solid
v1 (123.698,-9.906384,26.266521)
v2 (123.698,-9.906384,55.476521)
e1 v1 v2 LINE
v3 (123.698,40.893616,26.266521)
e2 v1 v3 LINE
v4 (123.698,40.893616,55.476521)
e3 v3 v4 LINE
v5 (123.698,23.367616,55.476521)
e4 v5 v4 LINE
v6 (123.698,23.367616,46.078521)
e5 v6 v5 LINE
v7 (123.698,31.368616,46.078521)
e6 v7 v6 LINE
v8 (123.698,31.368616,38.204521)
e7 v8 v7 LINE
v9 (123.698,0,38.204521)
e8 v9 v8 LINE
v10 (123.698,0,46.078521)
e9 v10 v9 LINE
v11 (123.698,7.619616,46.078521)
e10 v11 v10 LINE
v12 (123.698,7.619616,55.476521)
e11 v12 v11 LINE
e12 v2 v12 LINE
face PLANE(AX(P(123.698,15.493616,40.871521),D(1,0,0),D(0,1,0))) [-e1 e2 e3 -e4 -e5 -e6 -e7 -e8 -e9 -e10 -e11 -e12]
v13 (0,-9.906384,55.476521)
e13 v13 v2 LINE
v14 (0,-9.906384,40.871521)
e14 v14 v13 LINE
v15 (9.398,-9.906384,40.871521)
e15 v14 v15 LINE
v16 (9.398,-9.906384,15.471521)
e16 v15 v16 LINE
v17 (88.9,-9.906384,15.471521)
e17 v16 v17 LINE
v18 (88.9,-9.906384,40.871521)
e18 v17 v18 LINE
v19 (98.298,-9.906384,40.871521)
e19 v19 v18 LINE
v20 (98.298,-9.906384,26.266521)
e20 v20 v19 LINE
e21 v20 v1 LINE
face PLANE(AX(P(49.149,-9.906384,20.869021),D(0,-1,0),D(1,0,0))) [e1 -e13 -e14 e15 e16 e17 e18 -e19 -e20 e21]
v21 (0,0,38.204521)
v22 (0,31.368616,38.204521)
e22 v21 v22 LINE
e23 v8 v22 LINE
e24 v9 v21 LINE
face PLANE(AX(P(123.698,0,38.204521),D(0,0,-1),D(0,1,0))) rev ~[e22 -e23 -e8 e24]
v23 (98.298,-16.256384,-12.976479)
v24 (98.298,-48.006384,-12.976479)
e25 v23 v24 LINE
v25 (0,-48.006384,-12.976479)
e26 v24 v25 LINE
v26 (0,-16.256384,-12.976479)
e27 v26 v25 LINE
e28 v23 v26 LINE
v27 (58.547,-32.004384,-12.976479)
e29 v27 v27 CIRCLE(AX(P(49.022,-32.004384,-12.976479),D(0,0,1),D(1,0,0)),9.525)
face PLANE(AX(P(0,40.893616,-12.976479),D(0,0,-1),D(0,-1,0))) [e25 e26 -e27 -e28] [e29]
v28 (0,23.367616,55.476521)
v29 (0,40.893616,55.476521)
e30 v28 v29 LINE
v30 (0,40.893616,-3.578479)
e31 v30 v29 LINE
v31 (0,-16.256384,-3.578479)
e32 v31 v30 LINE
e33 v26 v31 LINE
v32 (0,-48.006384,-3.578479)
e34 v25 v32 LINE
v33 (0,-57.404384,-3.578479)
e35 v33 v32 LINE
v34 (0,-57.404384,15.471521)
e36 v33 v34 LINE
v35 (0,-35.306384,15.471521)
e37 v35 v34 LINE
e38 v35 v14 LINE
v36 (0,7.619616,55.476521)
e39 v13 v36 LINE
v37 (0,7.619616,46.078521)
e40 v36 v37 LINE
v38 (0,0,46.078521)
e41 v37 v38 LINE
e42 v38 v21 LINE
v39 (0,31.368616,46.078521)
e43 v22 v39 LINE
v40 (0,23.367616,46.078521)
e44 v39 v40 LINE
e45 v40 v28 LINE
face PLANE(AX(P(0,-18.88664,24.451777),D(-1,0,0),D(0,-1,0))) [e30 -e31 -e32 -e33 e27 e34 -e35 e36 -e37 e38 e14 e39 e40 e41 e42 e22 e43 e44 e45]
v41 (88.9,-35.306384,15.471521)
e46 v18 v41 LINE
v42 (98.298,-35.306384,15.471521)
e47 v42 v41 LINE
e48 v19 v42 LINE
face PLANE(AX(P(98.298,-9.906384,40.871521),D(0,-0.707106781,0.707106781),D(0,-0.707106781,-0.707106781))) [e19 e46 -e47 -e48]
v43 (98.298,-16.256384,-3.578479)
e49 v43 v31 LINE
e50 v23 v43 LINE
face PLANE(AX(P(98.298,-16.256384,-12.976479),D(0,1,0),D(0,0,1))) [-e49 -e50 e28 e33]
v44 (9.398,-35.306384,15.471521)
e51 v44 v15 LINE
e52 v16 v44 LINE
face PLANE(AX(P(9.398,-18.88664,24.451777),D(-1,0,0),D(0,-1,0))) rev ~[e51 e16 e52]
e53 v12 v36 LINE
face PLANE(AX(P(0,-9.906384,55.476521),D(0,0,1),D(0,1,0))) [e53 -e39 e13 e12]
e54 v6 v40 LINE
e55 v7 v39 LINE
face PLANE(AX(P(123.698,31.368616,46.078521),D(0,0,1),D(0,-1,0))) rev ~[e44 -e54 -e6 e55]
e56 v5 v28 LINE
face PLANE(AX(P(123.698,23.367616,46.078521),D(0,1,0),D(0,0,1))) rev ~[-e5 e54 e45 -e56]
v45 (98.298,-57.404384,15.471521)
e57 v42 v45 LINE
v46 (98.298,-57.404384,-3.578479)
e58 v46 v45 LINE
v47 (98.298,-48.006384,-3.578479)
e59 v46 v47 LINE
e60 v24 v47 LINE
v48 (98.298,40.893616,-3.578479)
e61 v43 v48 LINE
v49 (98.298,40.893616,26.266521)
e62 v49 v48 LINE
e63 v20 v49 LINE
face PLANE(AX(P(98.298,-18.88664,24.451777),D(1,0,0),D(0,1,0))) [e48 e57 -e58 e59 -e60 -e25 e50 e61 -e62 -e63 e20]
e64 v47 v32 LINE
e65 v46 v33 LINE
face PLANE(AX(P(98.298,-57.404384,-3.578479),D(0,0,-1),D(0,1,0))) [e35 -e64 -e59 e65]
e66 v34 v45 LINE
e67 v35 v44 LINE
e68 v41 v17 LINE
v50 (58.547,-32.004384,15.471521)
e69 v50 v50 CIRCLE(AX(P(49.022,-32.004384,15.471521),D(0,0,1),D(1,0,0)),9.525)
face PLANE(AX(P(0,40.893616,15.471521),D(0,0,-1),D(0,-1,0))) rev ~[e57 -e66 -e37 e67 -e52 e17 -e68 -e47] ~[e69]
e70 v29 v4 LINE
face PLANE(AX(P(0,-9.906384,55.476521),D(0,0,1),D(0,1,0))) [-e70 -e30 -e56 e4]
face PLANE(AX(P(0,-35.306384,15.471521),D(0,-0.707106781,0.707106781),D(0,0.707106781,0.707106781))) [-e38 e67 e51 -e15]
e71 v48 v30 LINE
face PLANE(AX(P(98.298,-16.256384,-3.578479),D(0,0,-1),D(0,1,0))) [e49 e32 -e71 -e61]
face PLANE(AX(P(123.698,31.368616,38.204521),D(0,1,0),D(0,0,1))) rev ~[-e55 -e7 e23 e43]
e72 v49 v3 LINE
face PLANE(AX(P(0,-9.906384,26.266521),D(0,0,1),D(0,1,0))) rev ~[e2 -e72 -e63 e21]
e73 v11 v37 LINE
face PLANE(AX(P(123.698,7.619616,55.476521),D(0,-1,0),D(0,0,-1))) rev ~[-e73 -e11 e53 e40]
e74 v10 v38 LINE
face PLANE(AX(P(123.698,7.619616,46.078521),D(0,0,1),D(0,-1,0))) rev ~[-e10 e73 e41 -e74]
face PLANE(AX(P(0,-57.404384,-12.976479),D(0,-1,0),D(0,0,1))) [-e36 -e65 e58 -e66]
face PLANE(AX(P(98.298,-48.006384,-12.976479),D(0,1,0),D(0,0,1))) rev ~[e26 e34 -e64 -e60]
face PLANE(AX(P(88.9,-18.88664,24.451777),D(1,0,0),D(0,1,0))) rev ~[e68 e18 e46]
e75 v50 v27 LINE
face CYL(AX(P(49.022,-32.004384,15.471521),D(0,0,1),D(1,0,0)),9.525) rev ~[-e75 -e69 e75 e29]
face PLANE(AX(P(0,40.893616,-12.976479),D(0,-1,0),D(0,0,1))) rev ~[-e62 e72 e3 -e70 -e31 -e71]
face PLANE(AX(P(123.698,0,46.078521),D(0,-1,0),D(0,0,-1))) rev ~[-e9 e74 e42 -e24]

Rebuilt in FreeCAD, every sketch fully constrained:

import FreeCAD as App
import Part
import Sketcher
from FreeCAD import Vector
Q = App.Units.Quantity

doc = App.newDocument("Part")
body = doc.addObject("PartDesign::Body", "Body")

sketch1 = body.newObject("Sketcher::SketchObject", "Sketch")
sketch1.AttachmentSupport = (doc.getObject("YZ_Plane"), [""])
sketch1.MapMode = "FlatFace"
sketch1.addGeometry([
    Part.LineSegment(Vector(-10, 55, 0), Vector(-10, 26, 0)),
    Part.LineSegment(Vector(-10, 26, 0), Vector(41, 26, 0)),
    Part.LineSegment(Vector(41, 26, 0), Vector(41, 55, 0)),
    Part.LineSegment(Vector(41, 55, 0), Vector(-10, 55, 0)),
], False)
sketch1.addConstraint([
    Sketcher.Constraint("Coincident", 0, 2, 1, 1),
    Sketcher.Constraint("Coincident", 1, 2, 2, 1),
    Sketcher.Constraint("Coincident", 2, 2, 3, 1),
    Sketcher.Constraint("Coincident", 3, 2, 0, 1),
    Sketcher.Constraint("Vertical", 0),
    Sketcher.Constraint("Horizontal", 1),
    Sketcher.Constraint("Vertical", 2),
    Sketcher.Constraint("Horizontal", 3),
    Sketcher.Constraint("DistanceX", 1, 1, 1, 2, Q("2 in")),
    Sketcher.Constraint("DistanceY", 0, 2, 0, 1, Q("1.15 in")),
    Sketcher.Constraint("DistanceY", -1, 1, 0, 2, 26.266521),
    Sketcher.Constraint("DistanceX", 0, 2, -1, 1, 9.906384),
])
pad1 = body.newObject("PartDesign::Pad", "Pad")
pad1.Profile = sketch1
pad1.Length = Q("4.87 in")

sketch2 = body.newObject("Sketcher::SketchObject", "Sketch001")
sketch2.AttachmentSupport = (doc.getObject("YZ_Plane"), [""])
sketch2.MapMode = "FlatFace"
sketch2.AttachmentOffset = App.Placement(Vector(0, 0, 4.87 * 25.4), App.Rotation())
sketch2.addGeometry([
    Part.LineSegment(Vector(23, 46, 0), Vector(23, 55, 0)),
    Part.LineSegment(Vector(23, 55, 0), Vector(8, 55, 0)),
    Part.LineSegment(Vector(8, 55, 0), Vector(8, 46, 0)),
    Part.LineSegment(Vector(8, 46, 0), Vector(0, 46, 0)),
    Part.LineSegment(Vector(0, 46, 0), Vector(0, 38, 0)),
    Part.LineSegment(Vector(0, 38, 0), Vector(31, 38, 0)),
    Part.LineSegment(Vector(31, 38, 0), Vector(31, 46, 0)),
    Part.LineSegment(Vector(31, 46, 0), Vector(23, 46, 0)),
], False)
sketch2.addConstraint([
    Sketcher.Constraint("Coincident", 0, 2, 1, 1),
    Sketcher.Constraint("Coincident", 1, 2, 2, 1),
    Sketcher.Constraint("Coincident", 2, 2, 3, 1),
    Sketcher.Constraint("Coincident", 3, 2, 4, 1),
    Sketcher.Constraint("Coincident", 4, 2, 5, 1),
    Sketcher.Constraint("Coincident", 5, 2, 6, 1),
    Sketcher.Constraint("Coincident", 6, 2, 7, 1),
    Sketcher.Constraint("Coincident", 7, 2, 0, 1),
    Sketcher.Constraint("Vertical", 0),
    Sketcher.Constraint("Horizontal", 1),
    Sketcher.Constraint("Vertical", 2),
    Sketcher.Constraint("Horizontal", 3),
    Sketcher.Constraint("Vertical", 4),
    Sketcher.Constraint("Horizontal", 5),
    Sketcher.Constraint("Vertical", 6),
    Sketcher.Constraint("Horizontal", 7),
    Sketcher.Constraint("PointOnObject", 3, 2, -2),
    Sketcher.Constraint("Horizontal", 3, 2, 6, 2),
    Sketcher.Constraint("DistanceX", 1, 2, 1, 1, Q("0.62 in")),
    Sketcher.Constraint("DistanceY", 0, 1, 0, 2, Q("0.37 in")),
    Sketcher.Constraint("DistanceY", 4, 2, 4, 1, Q("0.31 in")),
    Sketcher.Constraint("DistanceX", 7, 2, 7, 1, Q("0.315 in")),
    Sketcher.Constraint("DistanceX", 3, 2, 3, 1, 7.619616),
    Sketcher.Constraint("DistanceY", -1, 1, 0, 2, 55.476521),
])
pocket1 = body.newObject("PartDesign::Pocket", "Pocket")
pocket1.Profile = sketch2
pocket1.Length = Q("4.87 in")

sketch3 = body.newObject("Sketcher::SketchObject", "Sketch002")
sketch3.AttachmentSupport = (doc.getObject("XZ_Plane"), [""])
sketch3.MapMode = "FlatFace"
sketch3.AttachmentOffset = App.Placement(Vector(0, 0, 9.906384), App.Rotation())
sketch3.addGeometry([
    Part.LineSegment(Vector(0, 26, 0), Vector(0, 15, 0)),
    Part.LineSegment(Vector(0, 15, 0), Vector(98, 15, 0)),
    Part.LineSegment(Vector(98, 15, 0), Vector(98, 26, 0)),
    Part.LineSegment(Vector(98, 26, 0), Vector(0, 26, 0)),
], False)
sketch3.addConstraint([
    Sketcher.Constraint("Coincident", 0, 2, 1, 1),
    Sketcher.Constraint("Coincident", 1, 2, 2, 1),
    Sketcher.Constraint("Coincident", 2, 2, 3, 1),
    Sketcher.Constraint("Coincident", 3, 2, 0, 1),
    Sketcher.Constraint("Vertical", 0),
    Sketcher.Constraint("Horizontal", 1),
    Sketcher.Constraint("Vertical", 2),
    Sketcher.Constraint("Horizontal", 3),
    Sketcher.Constraint("PointOnObject", 0, 2, -2),
    Sketcher.Constraint("DistanceX", 1, 1, 1, 2, Q("3.87 in")),
    Sketcher.Constraint("DistanceY", 0, 2, 0, 1, Q("0.425 in")),
    Sketcher.Constraint("DistanceY", -1, 1, 0, 2, 15.471521),
])
pad2 = body.newObject("PartDesign::Pad", "Pad001")
pad2.Profile = sketch3
pad2.Length = Q("2 in")
pad2.Reversed = True

sketch4 = body.newObject("Sketcher::SketchObject", "Sketch003")
sketch4.AttachmentSupport = (doc.getObject("YZ_Plane"), [""])
sketch4.MapMode = "FlatFace"
sketch4.addGeometry([
    Part.LineSegment(Vector(41, 15, 0), Vector(41, -13, 0)),
    Part.LineSegment(Vector(41, -13, 0), Vector(-57, -13, 0)),
    Part.LineSegment(Vector(-57, -13, 0), Vector(-57, 15, 0)),
    Part.LineSegment(Vector(-57, 15, 0), Vector(41, 15, 0)),
], False)
sketch4.addConstraint([
    Sketcher.Constraint("Coincident", 0, 2, 1, 1),
    Sketcher.Constraint("Coincident", 1, 2, 2, 1),
    Sketcher.Constraint("Coincident", 2, 2, 3, 1),
    Sketcher.Constraint("Coincident", 3, 2, 0, 1),
    Sketcher.Constraint("Vertical", 0),
    Sketcher.Constraint("Horizontal", 1),
    Sketcher.Constraint("Vertical", 2),
    Sketcher.Constraint("Horizontal", 3),
    Sketcher.Constraint("DistanceX", 1, 2, 1, 1, Q("3.87 in")),
    Sketcher.Constraint("DistanceY", 0, 2, 0, 1, Q("1.12 in")),
    Sketcher.Constraint("DistanceY", 0, 2, -1, 1, 12.976479),
    Sketcher.Constraint("DistanceX", -1, 1, 0, 2, 40.893616),
])
pad3 = body.newObject("PartDesign::Pad", "Pad002")
pad3.Profile = sketch4
pad3.Length = Q("3.87 in")

sketch5 = body.newObject("Sketcher::SketchObject", "Sketch004")
sketch5.AttachmentSupport = (doc.getObject("YZ_Plane"), [""])
sketch5.MapMode = "FlatFace"
sketch5.AttachmentOffset = App.Placement(Vector(0, 0, 3.87 * 25.4), App.Rotation())
sketch5.addGeometry([
    Part.LineSegment(Vector(-35, 15, 0), Vector(-10, 15, 0)),
    Part.LineSegment(Vector(-10, 15, 0), Vector(-10, 41, 0)),
    Part.LineSegment(Vector(-10, 41, 0), Vector(-35, 15, 0)),
], False)
sketch5.addConstraint([
    Sketcher.Constraint("Coincident", 0, 2, 1, 1),
    Sketcher.Constraint("Coincident", 1, 2, 2, 1),
    Sketcher.Constraint("Coincident", 2, 2, 0, 1),
    Sketcher.Constraint("Horizontal", 0),
    Sketcher.Constraint("Vertical", 1),
    Sketcher.Constraint("Equal", 0, 1),
    Sketcher.Constraint("DistanceX", 0, 1, 0, 2, Q("1 in")),
    Sketcher.Constraint("DistanceY", -1, 1, 0, 2, 15.471521),
    Sketcher.Constraint("DistanceX", 0, 2, -1, 1, 9.906384),
])
pad4 = body.newObject("PartDesign::Pad", "Pad003")
pad4.Profile = sketch5
pad4.Length = Q("0.37 in")
pad4.Reversed = True

sketch6 = body.newObject("Sketcher::SketchObject", "Sketch005")
sketch6.AttachmentSupport = (doc.getObject("YZ_Plane"), [""])
sketch6.MapMode = "FlatFace"
sketch6.addGeometry([
    Part.LineSegment(Vector(-10, 41, 0), Vector(-10, 15, 0)),
    Part.LineSegment(Vector(-10, 15, 0), Vector(-35, 15, 0)),
    Part.LineSegment(Vector(-35, 15, 0), Vector(-10, 41, 0)),
], False)
sketch6.addConstraint([
    Sketcher.Constraint("Coincident", 0, 2, 1, 1),
    Sketcher.Constraint("Coincident", 1, 2, 2, 1),
    Sketcher.Constraint("Coincident", 2, 2, 0, 1),
    Sketcher.Constraint("Vertical", 0),
    Sketcher.Constraint("Horizontal", 1),
    Sketcher.Constraint("Equal", 1, 0),
    Sketcher.Constraint("DistanceX", 1, 2, 1, 1, Q("1 in")),
    Sketcher.Constraint("DistanceY", -1, 1, 0, 2, 15.471521),
    Sketcher.Constraint("DistanceX", 0, 2, -1, 1, 9.906384),
])
pad5 = body.newObject("PartDesign::Pad", "Pad004")
pad5.Profile = sketch6
pad5.Length = Q("0.37 in")

sketch7 = body.newObject("Sketcher::SketchObject", "Sketch006")
sketch7.AttachmentSupport = (doc.getObject("YZ_Plane"), [""])
sketch7.MapMode = "FlatFace"
sketch7.AttachmentOffset = App.Placement(Vector(0, 0, 3.87 * 25.4), App.Rotation())
sketch7.addGeometry([
    Part.LineSegment(Vector(-57, -4, 0), Vector(-57, -13, 0)),
    Part.LineSegment(Vector(-57, -13, 0), Vector(-48, -13, 0)),
    Part.LineSegment(Vector(-48, -13, 0), Vector(-48, -4, 0)),
    Part.LineSegment(Vector(-48, -4, 0), Vector(-57, -4, 0)),
], False)
sketch7.addConstraint([
    Sketcher.Constraint("Coincident", 0, 2, 1, 1),
    Sketcher.Constraint("Coincident", 1, 2, 2, 1),
    Sketcher.Constraint("Coincident", 2, 2, 3, 1),
    Sketcher.Constraint("Coincident", 3, 2, 0, 1),
    Sketcher.Constraint("Vertical", 0),
    Sketcher.Constraint("Horizontal", 1),
    Sketcher.Constraint("Vertical", 2),
    Sketcher.Constraint("Horizontal", 3),
    Sketcher.Constraint("Equal", 3, 0),
    Sketcher.Constraint("DistanceX", 1, 1, 1, 2, Q("0.37 in")),
    Sketcher.Constraint("DistanceY", 0, 2, -1, 1, 12.976479),
    Sketcher.Constraint("DistanceX", 0, 2, -1, 1, 57.404384),
])
pocket2 = body.newObject("PartDesign::Pocket", "Pocket001")
pocket2.Profile = sketch7
pocket2.Length = Q("3.87 in")

sketch8 = body.newObject("Sketcher::SketchObject", "Sketch007")
sketch8.AttachmentSupport = (doc.getObject("YZ_Plane"), [""])
sketch8.MapMode = "FlatFace"
sketch8.AttachmentOffset = App.Placement(Vector(0, 0, 3.87 * 25.4), App.Rotation())
sketch8.addGeometry([
    Part.LineSegment(Vector(-16, -4, 0), Vector(-16, -13, 0)),
    Part.LineSegment(Vector(-16, -13, 0), Vector(41, -13, 0)),
    Part.LineSegment(Vector(41, -13, 0), Vector(41, -4, 0)),
    Part.LineSegment(Vector(41, -4, 0), Vector(-16, -4, 0)),
], False)
sketch8.addConstraint([
    Sketcher.Constraint("Coincident", 0, 2, 1, 1),
    Sketcher.Constraint("Coincident", 1, 2, 2, 1),
    Sketcher.Constraint("Coincident", 2, 2, 3, 1),
    Sketcher.Constraint("Coincident", 3, 2, 0, 1),
    Sketcher.Constraint("Vertical", 0),
    Sketcher.Constraint("Horizontal", 1),
    Sketcher.Constraint("Vertical", 2),
    Sketcher.Constraint("Horizontal", 3),
    Sketcher.Constraint("DistanceX", 1, 1, 1, 2, Q("2.25 in")),
    Sketcher.Constraint("DistanceY", 0, 2, 0, 1, Q("0.37 in")),
    Sketcher.Constraint("DistanceY", 0, 2, -1, 1, 12.976479),
    Sketcher.Constraint("DistanceX", 0, 2, -1, 1, 16.256384),
])
pocket3 = body.newObject("PartDesign::Pocket", "Pocket002")
pocket3.Profile = sketch8
pocket3.Length = Q("3.87 in")

sketch9 = body.newObject("Sketcher::SketchObject", "Sketch008")
sketch9.AttachmentSupport = (doc.getObject("XY_Plane"), [""])
sketch9.MapMode = "FlatFace"
sketch9.AttachmentOffset = App.Placement(Vector(0, 0, 15.471521), App.Rotation())
sketch9.addGeometry(Part.Circle(Vector(49, -32, 0), Vector(0, 0, 1), 10), False)
sketch9.addConstraint([
    Sketcher.Constraint("Diameter", 0, Q("0.75 in")),
    Sketcher.Constraint("DistanceX", -1, 1, 0, 3, Q("1.93 in")),
    Sketcher.Constraint("DistanceY", 0, 3, -1, 1, 32.004384),
])
pocket4 = body.newObject("PartDesign::Pocket", "Pocket003")
pocket4.Profile = sketch9
pocket4.Length = Q("1.12 in")

doc.recompute()
